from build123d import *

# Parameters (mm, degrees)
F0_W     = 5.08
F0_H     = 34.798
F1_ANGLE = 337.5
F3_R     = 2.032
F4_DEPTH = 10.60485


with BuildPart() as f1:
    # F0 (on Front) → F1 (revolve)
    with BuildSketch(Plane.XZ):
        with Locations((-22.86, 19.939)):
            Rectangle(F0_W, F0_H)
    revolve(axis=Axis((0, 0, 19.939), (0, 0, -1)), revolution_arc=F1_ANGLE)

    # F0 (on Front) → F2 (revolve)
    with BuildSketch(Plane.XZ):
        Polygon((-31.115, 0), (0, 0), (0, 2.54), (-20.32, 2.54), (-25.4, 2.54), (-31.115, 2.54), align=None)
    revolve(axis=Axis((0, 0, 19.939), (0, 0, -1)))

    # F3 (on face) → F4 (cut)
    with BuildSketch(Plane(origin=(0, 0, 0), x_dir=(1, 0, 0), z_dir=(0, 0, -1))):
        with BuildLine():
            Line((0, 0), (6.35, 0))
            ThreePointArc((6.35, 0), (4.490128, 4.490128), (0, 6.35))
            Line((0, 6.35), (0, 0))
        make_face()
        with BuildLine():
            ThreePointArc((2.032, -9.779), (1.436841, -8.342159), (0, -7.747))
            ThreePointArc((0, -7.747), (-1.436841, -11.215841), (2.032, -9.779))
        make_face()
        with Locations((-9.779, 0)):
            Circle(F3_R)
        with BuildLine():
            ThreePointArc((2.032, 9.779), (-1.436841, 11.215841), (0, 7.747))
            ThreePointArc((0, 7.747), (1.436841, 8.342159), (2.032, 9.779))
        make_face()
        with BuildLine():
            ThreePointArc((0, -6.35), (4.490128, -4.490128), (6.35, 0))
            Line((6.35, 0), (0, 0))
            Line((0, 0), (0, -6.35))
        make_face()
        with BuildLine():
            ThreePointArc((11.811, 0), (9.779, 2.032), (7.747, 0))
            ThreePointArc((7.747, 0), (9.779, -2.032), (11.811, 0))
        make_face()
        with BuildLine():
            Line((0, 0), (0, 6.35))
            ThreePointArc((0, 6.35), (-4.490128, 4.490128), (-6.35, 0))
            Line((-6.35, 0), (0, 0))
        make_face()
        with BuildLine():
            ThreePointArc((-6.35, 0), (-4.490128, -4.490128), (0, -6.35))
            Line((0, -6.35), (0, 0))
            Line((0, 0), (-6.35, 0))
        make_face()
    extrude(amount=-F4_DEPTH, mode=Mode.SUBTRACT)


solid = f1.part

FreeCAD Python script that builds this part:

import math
import FreeCAD as App
import Part
import Sketcher

V = App.Vector
Q = App.Units.Quantity


def add_polygon(sketch, points):
    """Adds a closed chain of lines whose ends are joined by coincident constraints."""
    first, n = sketch.GeometryCount, len(points)
    for a, b in zip(points, points[1:] + points[:1]):
        sketch.addGeometry(Part.LineSegment(App.Vector(*a, 0), App.Vector(*b, 0)), False)
    for i in range(n):
        sketch.addConstraint(Sketcher.Constraint("Coincident", first + i, 2, first + (i + 1) % n, 1))

doc = App.newDocument("Part")
body = doc.addObject("PartDesign::Body", "Body")

# Sketch on XZ plane
sketch1 = body.newObject("Sketcher::SketchObject", "Sketch")
sketch1.AttachmentSupport = (doc.getObject("XZ_Plane"), [""])
sketch1.MapMode = "FlatFace"
add_polygon(sketch1, [(-25, 37), (-25, 3), (-20, 3), (-20, 37)])  # lines 0-3
sketch1.addConstraint([
    Sketcher.Constraint("Vertical", 0),
    Sketcher.Constraint("Horizontal", 1),
    Sketcher.Constraint("Vertical", 2),
    Sketcher.Constraint("Horizontal", 3),
    Sketcher.Constraint("DistanceX", 1, 1, 1, 2, Q("0.2 in")),
    Sketcher.Constraint("DistanceX", 0, 2, -1, 1, Q("1 in")),
    Sketcher.Constraint("DistanceY", 0, 2, 0, 1, Q("1.37 in")),
    Sketcher.Constraint("DistanceY", -1, 1, 0, 2, Q("0.1 in")),
])
revolution = body.newObject("PartDesign::Revolution", "Revolution")
revolution.Profile = sketch1
revolution.ReferenceAxis = (sketch1, ["V_Axis"])
revolution.Angle = 337.5
revolution.Reversed = True

# Sketch on XZ plane
sketch2 = body.newObject("Sketcher::SketchObject", "Sketch001")
sketch2.AttachmentSupport = (doc.getObject("XZ_Plane"), [""])
sketch2.MapMode = "FlatFace"
add_polygon(sketch2, [(-31.1, 0), (0, 0), (0, 2.5), (-31.1, 2.5)])  # lines 0-3
sketch2.addConstraint([
    Sketcher.Constraint("Horizontal", 0),
    Sketcher.Constraint("Vertical", 1),
    Sketcher.Constraint("Horizontal", 2),
    Sketcher.Constraint("Vertical", 3),
    Sketcher.Constraint("Coincident", 0, 2, -1, 1),
    Sketcher.Constraint("DistanceY", 1, 1, 1, 2, Q("0.1 in")),
    Sketcher.Constraint("DistanceX", 0, 1, 0, 2, Q("1.225 in")),
])
revolution2 = body.newObject("PartDesign::Revolution", "Revolution001")
revolution2.Profile = sketch2
revolution2.ReferenceAxis = (sketch2, ["V_Axis"])
revolution2.Angle = 360

# Sketch on XY plane
sketch3 = body.newObject("Sketcher::SketchObject", "Sketch002")
sketch3.AttachmentSupport = (doc.getObject("XY_Plane"), [""])
sketch3.MapMode = "FlatFace"
sketch3.addGeometry([
    Part.ArcOfCircle(Part.Circle(V(0, 0, 0), V(0, 0, 1), 6.4), math.radians(-90), math.radians(0)),  # 0
    Part.ArcOfCircle(Part.Circle(V(0, 0, 0), V(0, 0, 1), 6.4), math.radians(-180), math.radians(-90)),  # 1
    Part.ArcOfCircle(Part.Circle(V(0, 0, 0), V(0, 0, 1), 6.4), math.radians(90), math.radians(180)),  # 2
    Part.ArcOfCircle(Part.Circle(V(0, 0, 0), V(0, 0, 1), 6.4), math.radians(0), math.radians(90)),  # 3
    Part.ArcOfCircle(Part.Circle(V(0, 9.8, 0), V(0, 0, 1), 2), math.radians(-90), math.radians(0)),  # 4
    Part.ArcOfCircle(Part.Circle(V(0, 9.8, 0), V(0, 0, 1), 2), math.radians(0), math.radians(270)),  # 5
    Part.Circle(V(-9.8, 0, 0), V(0, 0, 1), 2),  # 6
    Part.ArcOfCircle(Part.Circle(V(0, -9.8, 0), V(0, 0, 1), 2), math.radians(90), math.radians(360)),  # 7
    Part.ArcOfCircle(Part.Circle(V(0, -9.8, 0), V(0, 0, 1), 2), math.radians(0), math.radians(90)),  # 8
    Part.Circle(V(9.8, 0, 0), V(0, 0, 1), 2),  # 9
], False)
sketch3.addConstraint([
    Sketcher.Constraint("Tangent", 0, 1, 1, 2),
    Sketcher.Constraint("Tangent", 1, 1, 2, 2),
    Sketcher.Constraint("Tangent", 2, 1, 3, 2),
    Sketcher.Constraint("Tangent", 3, 1, 0, 2),
    Sketcher.Constraint("Tangent", 4, 1, 5, 2),
    Sketcher.Constraint("Coincident", 5, 1, 4, 2),
    Sketcher.Constraint("Tangent", 7, 1, 8, 2),
    Sketcher.Constraint("Coincident", 8, 1, 7, 2),
    Sketcher.Constraint("Coincident", 0, 3, -1, 1),
    Sketcher.Constraint("Equal", 0, 1),
    Sketcher.Constraint("Equal", 5, 6),
    Sketcher.Constraint("Equal", 6, 7),
    Sketcher.Constraint("Equal", 8, 9),
    Sketcher.Constraint("Symmetric", 4, 3, 7, 3, -1, 1),
    Sketcher.Constraint("Symmetric", 6, 3, 9, 3, -1, 1),
    Sketcher.Constraint("Symmetric", 5, 1, 8, 1, -1),
    Sketcher.Constraint("PointOnObject", 6, 3, -1),
    Sketcher.Constraint("PointOnObject", 0, 1, -2),
    Sketcher.Constraint("PointOnObject", 1, 1, -1),
    Sketcher.Constraint("PointOnObject", 2, 1, -2),
    Sketcher.Constraint("PointOnObject", 3, 1, -1),
    Sketcher.Constraint("PointOnObject", 4, 1, -2),
    Sketcher.Constraint("PointOnObject", 7, 1, -2),
    Sketcher.Constraint("Horizontal", 4, 3, 5, 1),
    Sketcher.Constraint("Diameter", 6, Q("0.16 in")),
    Sketcher.Constraint("Radius", 0, Q("0.25 in")),
    Sketcher.Constraint("DistanceY", -1, 1, 4, 3, Q("0.385 in")),
    Sketcher.Constraint("DistanceX", 6, 3, -1, 1, Q("0.385 in")),
])
pocket1 = body.newObject("PartDesign::Pocket", "Pocket")
pocket1.Profile = sketch3
pocket1.Length = 10.60485
pocket1.Reversed = True

doc.recompute()
